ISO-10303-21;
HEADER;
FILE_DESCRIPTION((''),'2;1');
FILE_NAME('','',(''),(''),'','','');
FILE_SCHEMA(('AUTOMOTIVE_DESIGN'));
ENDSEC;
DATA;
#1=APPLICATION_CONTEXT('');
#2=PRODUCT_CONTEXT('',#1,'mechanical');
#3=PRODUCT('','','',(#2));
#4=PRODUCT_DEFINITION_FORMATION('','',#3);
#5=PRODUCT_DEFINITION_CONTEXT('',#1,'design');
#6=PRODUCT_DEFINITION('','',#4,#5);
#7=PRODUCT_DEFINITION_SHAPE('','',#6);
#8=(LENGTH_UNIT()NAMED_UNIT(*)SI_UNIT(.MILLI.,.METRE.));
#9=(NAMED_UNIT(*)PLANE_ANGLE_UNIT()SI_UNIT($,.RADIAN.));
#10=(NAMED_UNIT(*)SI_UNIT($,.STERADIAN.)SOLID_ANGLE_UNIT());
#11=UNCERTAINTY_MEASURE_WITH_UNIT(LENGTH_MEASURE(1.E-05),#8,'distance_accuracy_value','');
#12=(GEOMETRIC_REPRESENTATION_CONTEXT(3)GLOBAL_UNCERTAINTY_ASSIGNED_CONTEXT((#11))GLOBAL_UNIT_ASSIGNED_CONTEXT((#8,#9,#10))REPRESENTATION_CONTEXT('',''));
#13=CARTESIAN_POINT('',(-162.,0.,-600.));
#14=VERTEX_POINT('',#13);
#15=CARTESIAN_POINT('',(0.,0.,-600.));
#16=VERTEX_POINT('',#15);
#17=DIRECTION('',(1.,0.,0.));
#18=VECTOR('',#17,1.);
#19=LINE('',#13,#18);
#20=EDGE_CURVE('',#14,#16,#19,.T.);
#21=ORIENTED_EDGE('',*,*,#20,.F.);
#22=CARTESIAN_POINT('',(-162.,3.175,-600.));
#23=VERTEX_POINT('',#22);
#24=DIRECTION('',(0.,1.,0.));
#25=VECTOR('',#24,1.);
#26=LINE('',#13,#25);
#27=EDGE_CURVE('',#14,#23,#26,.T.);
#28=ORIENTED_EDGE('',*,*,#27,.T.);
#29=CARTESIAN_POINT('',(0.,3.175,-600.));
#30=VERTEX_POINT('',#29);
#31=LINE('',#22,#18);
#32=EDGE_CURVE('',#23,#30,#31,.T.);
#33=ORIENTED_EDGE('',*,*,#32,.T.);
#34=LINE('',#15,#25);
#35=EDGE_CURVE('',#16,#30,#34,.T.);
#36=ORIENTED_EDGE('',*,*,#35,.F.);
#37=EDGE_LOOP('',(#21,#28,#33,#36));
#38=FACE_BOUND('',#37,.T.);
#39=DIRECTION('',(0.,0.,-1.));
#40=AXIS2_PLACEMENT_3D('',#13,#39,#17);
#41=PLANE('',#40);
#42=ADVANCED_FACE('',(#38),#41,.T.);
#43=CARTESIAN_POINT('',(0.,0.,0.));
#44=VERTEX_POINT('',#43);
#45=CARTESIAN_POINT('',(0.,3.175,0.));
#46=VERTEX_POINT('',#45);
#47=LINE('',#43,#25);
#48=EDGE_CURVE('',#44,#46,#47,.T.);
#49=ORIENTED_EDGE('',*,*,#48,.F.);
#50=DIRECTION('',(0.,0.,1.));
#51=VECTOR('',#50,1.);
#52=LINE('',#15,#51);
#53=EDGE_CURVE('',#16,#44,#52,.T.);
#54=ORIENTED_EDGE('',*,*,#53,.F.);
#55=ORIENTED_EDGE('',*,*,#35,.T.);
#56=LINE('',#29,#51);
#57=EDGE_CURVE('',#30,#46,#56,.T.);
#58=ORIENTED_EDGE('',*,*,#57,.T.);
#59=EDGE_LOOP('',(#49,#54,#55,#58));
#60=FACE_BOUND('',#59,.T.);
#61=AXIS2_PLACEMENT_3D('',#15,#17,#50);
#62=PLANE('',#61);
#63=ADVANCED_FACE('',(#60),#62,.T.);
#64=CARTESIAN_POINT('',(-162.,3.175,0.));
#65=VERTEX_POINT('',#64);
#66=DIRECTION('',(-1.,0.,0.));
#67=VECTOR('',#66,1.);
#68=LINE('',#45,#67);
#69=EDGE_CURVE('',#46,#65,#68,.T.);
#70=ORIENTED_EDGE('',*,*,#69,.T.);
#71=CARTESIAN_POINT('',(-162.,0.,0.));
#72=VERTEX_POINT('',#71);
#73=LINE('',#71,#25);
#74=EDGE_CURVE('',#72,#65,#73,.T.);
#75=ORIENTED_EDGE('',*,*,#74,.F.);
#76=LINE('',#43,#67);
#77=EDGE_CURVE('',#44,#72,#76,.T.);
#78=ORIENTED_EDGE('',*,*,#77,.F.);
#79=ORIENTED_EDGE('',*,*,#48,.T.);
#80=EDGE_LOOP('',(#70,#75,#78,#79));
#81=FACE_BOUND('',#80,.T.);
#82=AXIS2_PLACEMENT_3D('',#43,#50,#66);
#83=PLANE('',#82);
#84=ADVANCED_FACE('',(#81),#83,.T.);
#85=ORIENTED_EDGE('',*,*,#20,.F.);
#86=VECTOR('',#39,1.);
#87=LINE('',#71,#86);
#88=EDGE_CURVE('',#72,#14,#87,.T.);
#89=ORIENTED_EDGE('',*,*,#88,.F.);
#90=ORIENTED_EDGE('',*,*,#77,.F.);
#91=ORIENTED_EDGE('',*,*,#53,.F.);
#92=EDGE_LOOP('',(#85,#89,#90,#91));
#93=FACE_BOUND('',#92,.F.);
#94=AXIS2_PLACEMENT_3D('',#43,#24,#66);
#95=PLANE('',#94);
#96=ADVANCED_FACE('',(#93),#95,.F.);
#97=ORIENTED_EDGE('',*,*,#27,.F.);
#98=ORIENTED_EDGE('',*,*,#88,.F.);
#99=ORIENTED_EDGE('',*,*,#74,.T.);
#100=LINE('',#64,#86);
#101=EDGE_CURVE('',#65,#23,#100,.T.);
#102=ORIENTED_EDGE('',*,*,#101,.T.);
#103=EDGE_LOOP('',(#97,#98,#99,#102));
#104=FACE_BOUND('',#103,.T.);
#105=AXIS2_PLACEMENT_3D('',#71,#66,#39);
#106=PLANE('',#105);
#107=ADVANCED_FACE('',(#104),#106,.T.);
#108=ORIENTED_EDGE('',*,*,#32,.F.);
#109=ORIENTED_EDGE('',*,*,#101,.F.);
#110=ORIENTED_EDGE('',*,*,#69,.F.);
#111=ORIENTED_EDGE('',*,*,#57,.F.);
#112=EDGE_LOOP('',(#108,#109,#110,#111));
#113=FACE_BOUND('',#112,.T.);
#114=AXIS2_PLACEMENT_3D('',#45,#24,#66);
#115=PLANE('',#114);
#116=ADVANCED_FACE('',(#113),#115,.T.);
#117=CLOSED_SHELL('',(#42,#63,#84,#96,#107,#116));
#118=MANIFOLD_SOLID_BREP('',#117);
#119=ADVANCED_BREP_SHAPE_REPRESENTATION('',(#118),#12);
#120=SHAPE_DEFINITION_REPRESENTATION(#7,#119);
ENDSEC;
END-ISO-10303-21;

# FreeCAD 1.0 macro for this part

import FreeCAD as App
import Part
import Sketcher


def add_polygon(sketch, points):
    """Adds a closed chain of lines whose ends are joined by coincident constraints."""
    first, n = sketch.GeometryCount, len(points)
    for a, b in zip(points, points[1:] + points[:1]):
        sketch.addGeometry(Part.LineSegment(App.Vector(*a, 0), App.Vector(*b, 0)), False)
    for i in range(n):
        sketch.addConstraint(Sketcher.Constraint("Coincident", first + i, 2, first + (i + 1) % n, 1))

doc = App.newDocument("Part")
body = doc.addObject("PartDesign::Body", "Body")

sketch1 = body.newObject("Sketcher::SketchObject", "Sketch")
sketch1.AttachmentSupport = (doc.getObject("XZ_Plane"), [""])
sketch1.MapMode = "FlatFace"
add_polygon(sketch1, [(-162, 0), (0, 0), (0, -600), (-162, -600)])
sketch1.addConstraint([
    Sketcher.Constraint("Horizontal", 0),
    Sketcher.Constraint("Vertical", 1),
    Sketcher.Constraint("Horizontal", 2),
    Sketcher.Constraint("Vertical", 3),
    Sketcher.Constraint("Coincident", 0, 2, -1, 1),
    Sketcher.Constraint("DistanceX", 0, 1, 0, 2, 162.0),
    Sketcher.Constraint("DistanceY", 1, 2, 1, 1, 600.0),
])
pad1 = body.newObject("PartDesign::Pad", "Pad")
pad1.Profile = sketch1
pad1.Length = 3.175
pad1.Reversed = True

doc.recompute()
